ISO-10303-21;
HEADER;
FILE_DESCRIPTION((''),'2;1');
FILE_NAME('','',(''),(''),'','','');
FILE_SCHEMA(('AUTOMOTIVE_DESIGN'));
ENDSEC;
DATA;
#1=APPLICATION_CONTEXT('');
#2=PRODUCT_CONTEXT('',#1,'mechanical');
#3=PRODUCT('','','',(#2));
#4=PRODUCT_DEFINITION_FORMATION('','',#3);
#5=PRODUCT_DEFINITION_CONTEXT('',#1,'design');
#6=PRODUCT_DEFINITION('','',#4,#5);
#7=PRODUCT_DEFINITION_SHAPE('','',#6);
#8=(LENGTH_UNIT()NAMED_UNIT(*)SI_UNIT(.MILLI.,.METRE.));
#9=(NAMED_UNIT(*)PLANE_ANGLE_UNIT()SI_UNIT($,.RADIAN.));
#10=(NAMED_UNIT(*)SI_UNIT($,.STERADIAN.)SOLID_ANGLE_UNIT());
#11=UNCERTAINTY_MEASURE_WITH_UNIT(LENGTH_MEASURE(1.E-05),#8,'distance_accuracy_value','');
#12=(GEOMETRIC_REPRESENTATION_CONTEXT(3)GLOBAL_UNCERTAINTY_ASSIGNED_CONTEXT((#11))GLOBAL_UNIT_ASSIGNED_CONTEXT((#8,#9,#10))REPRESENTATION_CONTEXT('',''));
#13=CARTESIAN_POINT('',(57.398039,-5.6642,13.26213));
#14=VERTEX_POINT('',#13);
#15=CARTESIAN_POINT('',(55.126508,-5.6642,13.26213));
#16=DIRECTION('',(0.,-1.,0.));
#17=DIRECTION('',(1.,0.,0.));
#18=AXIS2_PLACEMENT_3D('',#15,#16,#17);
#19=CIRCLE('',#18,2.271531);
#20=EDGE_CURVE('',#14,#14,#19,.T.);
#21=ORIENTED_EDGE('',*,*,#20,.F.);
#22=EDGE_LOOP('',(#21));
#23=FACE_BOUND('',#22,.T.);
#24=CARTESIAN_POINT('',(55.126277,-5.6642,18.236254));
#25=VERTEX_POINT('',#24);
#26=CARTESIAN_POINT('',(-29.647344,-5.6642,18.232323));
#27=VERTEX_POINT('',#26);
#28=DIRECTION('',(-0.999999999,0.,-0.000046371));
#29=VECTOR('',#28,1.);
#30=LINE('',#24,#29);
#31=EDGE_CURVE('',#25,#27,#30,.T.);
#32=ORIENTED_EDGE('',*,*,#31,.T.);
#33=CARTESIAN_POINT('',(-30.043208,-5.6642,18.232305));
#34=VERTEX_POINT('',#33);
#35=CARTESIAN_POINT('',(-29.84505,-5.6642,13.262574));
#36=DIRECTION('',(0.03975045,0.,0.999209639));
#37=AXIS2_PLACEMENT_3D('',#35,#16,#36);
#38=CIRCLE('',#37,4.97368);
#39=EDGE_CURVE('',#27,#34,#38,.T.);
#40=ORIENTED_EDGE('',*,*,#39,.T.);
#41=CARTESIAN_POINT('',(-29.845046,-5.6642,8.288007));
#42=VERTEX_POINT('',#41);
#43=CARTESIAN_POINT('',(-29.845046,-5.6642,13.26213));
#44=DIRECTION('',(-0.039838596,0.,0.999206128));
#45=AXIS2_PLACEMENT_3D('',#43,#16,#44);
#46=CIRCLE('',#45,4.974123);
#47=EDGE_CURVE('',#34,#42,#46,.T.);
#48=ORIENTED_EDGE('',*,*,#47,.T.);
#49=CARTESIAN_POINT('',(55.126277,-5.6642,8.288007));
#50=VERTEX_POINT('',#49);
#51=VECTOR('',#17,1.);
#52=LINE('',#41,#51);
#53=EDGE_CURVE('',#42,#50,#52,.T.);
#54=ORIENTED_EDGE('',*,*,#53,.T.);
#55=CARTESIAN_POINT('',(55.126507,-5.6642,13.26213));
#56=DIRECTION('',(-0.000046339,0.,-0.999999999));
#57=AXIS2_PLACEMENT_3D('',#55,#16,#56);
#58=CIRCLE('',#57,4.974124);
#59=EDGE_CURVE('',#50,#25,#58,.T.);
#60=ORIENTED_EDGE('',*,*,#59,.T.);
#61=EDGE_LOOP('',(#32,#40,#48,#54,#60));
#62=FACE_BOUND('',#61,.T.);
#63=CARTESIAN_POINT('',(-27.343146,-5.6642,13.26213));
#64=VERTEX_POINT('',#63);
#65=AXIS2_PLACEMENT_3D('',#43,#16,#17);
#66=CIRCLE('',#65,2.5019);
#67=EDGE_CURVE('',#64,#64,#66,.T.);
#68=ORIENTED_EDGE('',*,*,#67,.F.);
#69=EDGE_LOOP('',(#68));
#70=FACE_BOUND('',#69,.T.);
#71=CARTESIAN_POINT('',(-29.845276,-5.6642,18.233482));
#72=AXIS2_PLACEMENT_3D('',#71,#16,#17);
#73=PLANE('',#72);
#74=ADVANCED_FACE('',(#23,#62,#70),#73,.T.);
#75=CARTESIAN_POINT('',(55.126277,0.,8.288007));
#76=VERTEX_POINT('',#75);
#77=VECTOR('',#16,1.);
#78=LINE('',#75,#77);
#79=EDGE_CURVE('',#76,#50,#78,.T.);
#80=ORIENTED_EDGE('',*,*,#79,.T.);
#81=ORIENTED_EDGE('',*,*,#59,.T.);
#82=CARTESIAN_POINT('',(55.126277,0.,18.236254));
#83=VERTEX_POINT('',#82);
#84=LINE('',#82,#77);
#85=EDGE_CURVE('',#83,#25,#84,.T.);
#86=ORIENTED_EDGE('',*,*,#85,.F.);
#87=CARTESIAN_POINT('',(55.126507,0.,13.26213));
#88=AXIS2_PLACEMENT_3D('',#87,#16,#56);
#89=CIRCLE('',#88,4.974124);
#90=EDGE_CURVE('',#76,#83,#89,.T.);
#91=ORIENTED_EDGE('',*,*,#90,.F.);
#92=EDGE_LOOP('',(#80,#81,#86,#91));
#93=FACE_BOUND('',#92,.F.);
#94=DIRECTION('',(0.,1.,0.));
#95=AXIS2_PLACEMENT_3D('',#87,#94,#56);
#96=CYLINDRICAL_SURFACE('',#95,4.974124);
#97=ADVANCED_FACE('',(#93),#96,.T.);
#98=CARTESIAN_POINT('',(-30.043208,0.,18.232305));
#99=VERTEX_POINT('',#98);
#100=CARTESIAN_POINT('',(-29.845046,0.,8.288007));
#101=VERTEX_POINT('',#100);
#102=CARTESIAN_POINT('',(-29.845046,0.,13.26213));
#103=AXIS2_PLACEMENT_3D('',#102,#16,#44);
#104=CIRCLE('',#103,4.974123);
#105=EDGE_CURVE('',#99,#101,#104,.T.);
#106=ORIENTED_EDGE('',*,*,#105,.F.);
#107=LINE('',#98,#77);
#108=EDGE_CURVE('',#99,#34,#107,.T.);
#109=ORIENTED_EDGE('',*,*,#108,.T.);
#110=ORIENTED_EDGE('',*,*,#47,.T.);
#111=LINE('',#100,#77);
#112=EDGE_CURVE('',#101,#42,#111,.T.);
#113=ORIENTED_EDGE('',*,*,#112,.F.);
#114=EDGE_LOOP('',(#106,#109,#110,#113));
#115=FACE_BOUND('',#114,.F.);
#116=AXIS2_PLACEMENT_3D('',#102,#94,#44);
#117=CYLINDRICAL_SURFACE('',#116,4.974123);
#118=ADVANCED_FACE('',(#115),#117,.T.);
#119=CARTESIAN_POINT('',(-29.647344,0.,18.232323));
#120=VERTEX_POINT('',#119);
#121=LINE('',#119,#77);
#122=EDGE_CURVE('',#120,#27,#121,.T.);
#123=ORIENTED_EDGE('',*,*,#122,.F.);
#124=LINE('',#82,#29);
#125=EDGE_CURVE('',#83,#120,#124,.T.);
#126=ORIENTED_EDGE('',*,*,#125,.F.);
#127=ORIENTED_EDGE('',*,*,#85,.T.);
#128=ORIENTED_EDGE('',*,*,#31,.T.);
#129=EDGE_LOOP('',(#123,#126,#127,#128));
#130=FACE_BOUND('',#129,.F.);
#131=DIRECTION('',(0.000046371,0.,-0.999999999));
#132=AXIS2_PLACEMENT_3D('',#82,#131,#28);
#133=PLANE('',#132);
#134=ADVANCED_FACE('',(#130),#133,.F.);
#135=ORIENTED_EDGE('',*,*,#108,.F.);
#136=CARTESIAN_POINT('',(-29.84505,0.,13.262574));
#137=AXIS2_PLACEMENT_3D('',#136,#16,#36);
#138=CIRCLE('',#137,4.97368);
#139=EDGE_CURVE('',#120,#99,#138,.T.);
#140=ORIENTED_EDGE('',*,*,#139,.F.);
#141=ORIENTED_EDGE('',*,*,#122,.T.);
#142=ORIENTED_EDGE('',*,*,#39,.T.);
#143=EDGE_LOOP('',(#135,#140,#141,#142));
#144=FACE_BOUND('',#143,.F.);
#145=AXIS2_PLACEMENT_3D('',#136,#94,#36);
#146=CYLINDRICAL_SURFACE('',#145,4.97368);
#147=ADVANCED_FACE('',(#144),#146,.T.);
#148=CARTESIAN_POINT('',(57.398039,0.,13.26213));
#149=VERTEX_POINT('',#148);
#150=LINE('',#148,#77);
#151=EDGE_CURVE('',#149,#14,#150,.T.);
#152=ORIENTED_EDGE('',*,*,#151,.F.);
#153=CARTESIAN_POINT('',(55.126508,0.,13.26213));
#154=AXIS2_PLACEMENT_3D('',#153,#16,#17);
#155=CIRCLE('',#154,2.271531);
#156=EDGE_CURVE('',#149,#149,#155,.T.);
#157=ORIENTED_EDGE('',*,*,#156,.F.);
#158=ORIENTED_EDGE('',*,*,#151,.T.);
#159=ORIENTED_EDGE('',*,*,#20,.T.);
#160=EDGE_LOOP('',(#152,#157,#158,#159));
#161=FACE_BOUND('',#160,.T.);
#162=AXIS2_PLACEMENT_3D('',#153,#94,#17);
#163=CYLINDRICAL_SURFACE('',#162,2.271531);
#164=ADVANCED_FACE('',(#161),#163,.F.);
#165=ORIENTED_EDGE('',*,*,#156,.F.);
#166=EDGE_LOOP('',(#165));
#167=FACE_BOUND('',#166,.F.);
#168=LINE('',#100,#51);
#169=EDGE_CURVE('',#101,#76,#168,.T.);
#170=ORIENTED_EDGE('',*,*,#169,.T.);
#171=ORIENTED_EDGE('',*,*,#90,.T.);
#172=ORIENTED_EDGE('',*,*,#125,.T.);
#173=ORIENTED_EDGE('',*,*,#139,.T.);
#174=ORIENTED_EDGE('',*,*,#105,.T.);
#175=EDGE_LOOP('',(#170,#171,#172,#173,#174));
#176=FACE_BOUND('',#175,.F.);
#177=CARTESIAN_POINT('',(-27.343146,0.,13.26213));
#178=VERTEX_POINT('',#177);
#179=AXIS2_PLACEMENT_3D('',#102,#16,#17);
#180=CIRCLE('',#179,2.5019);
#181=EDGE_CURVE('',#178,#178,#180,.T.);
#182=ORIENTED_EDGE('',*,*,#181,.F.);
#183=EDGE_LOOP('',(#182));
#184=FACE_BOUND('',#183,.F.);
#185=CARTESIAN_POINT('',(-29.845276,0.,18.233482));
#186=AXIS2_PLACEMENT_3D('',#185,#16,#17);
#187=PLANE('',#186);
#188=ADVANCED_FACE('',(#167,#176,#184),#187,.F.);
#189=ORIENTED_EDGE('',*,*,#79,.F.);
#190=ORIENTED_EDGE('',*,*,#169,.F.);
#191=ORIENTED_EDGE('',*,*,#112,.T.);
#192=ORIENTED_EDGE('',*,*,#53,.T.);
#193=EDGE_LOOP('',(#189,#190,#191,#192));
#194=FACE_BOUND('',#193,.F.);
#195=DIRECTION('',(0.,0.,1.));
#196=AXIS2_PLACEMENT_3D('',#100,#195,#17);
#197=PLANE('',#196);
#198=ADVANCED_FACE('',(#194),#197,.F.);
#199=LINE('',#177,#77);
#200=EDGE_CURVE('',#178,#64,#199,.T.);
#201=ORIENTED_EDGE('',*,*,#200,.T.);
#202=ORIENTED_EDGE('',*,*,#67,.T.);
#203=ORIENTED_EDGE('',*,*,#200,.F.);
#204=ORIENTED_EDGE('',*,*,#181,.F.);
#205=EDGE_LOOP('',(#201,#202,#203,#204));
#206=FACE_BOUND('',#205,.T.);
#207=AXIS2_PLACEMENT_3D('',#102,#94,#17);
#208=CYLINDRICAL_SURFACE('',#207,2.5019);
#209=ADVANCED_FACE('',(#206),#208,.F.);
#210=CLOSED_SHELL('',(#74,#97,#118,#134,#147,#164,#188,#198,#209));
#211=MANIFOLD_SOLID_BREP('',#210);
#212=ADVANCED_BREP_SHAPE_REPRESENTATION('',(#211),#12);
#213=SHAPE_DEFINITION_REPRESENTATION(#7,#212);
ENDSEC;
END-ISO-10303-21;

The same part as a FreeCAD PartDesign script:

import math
import FreeCAD as App
import Part
import Sketcher
Q = App.Units.Quantity

doc = App.newDocument("Part")
body = doc.addObject("PartDesign::Body", "Body")

sketch1 = body.newObject("Sketcher::SketchObject", "Sketch")
sketch1.AttachmentSupport = (doc.getObject("XZ_Plane"), [""])
sketch1.MapMode = "FlatFace"
sketch1.addGeometry([
    Part.ArcOfCircle(Part.Circle(App.Vector(-29.84505, 13.262574, 0), App.Vector(0, 0, 1), 4.97368), math.radians(87.721867), math.radians(92.283344)),
    Part.ArcOfCircle(Part.Circle(App.Vector(-29.845046, 13.26213, 0), App.Vector(0, 0, 1), 4.974123), math.radians(92.283188), math.radians(269.999999)),
    Part.LineSegment(App.Vector(-29.845046, 8.288007, 0), App.Vector(55.126277, 8.288007, 0)),
    Part.ArcOfCircle(Part.Circle(App.Vector(55.126507, 13.26213, 0), App.Vector(0, 0, 1), 4.974124), math.radians(-90.002655), math.radians(90.002655)),
    Part.LineSegment(App.Vector(55.126277, 18.236254, 0), App.Vector(-29.647344, 18.232323, 0)),
    Part.Circle(App.Vector(-29.845046, 13.26213, 0), App.Vector(0, 0, 1), 2.5019),
    Part.Circle(App.Vector(55.126508, 13.26213, 0), App.Vector(0, 0, 1), 2.271531),
], False)
sketch1.addConstraint([
    Sketcher.Constraint("Coincident", 0, 2, 1, 1),
    Sketcher.Constraint("Tangent", 1, 2, 2, 1),
    Sketcher.Constraint("Coincident", 2, 2, 3, 1),
    Sketcher.Constraint("Tangent", 3, 2, 4, 1),
    Sketcher.Constraint("Coincident", 4, 2, 0, 1),
    Sketcher.Constraint("Horizontal", 2),
    Sketcher.Constraint("Coincident", 5, 3, 1, 3),
    Sketcher.Constraint("Coincident", 6, 3, 3, 3),
    Sketcher.Constraint("Equal", 1, 3),
    Sketcher.Constraint("Vertical", 2, 2, 3, 2),
    Sketcher.Constraint("Diameter", 5, Q("0.197 in")),
    Sketcher.Constraint("Radius", 0, Q("4.97368 mm")),
    Sketcher.Constraint("Diameter", 6, Q("4.543062 mm")),
    Sketcher.Constraint("Radius", 1, Q("4.974123 mm")),
    Sketcher.Constraint("DistanceX", 1, 3, 4, 2, Q("0.197702 mm")),
    Sketcher.Constraint("Distance", 4, Q("84.773621 mm")),
    Sketcher.Constraint("DistanceX", 0, 3, -1, 1, Q("29.84505 mm")),
    Sketcher.Constraint("DistanceY", -1, 1, 1, 3, Q("13.26213 mm")),
    Sketcher.Constraint("DistanceX", 0, 3, 6, 3, Q("84.971558 mm")),
    Sketcher.Constraint("DistanceY", 0, 3, 0, 2, Q("4.969731 mm")),
])
pad1 = body.newObject("PartDesign::Pad", "Pad")
pad1.Profile = sketch1
pad1.Length = Q("0.223 in")

doc.recompute()
